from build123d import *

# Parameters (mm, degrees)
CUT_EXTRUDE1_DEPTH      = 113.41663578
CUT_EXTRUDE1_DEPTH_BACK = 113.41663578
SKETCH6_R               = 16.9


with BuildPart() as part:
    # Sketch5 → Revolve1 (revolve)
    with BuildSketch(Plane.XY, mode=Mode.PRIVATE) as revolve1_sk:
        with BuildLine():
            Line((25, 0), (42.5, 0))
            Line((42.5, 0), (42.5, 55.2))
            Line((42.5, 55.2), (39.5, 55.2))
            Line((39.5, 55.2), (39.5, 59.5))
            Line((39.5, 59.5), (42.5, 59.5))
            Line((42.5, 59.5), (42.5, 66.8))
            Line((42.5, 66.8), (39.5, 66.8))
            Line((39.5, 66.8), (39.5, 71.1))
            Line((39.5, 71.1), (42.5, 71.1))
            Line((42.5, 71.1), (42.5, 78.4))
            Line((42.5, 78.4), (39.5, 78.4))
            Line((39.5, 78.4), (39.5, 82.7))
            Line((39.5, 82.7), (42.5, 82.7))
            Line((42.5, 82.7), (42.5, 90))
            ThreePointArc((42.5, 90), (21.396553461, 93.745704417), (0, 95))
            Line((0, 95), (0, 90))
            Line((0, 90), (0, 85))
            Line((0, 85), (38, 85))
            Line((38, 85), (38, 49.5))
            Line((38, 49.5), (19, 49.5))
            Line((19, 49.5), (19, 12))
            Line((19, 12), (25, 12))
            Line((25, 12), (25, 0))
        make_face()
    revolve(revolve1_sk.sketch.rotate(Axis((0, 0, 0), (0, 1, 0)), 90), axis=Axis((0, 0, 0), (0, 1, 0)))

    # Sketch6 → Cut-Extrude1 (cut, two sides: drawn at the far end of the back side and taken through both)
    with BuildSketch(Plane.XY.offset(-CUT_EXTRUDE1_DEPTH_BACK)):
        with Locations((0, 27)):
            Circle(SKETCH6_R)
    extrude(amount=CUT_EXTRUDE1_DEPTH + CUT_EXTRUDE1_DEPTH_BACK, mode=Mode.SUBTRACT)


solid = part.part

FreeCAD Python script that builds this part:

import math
import FreeCAD as App
import Part
import Sketcher
Q = App.Units.Quantity

doc = App.newDocument("Part")
params = doc.addObject("Spreadsheet::Sheet", "Params")
for row, (alias, value) in enumerate([
    ("sketch1_width", "3 mm"),
    ("sketch1_width2", "38 mm"),
    ("sketch1_width3", "19 mm"),
    ("sketch1_width4", "6 mm"),
    ("sketch1_height", "10 mm"),
    ("revolution_angle", "360 deg"),
    ("sketch2_diameter", "33.8 mm"),
], start=1):
    params.set(f"A{row}", alias)
    params.set(f"B{row}", "=" + value)
    params.setAlias(f"B{row}", alias)

body = doc.addObject("PartDesign::Body", "Body")

# Sketch on XY plane
sketch1 = doc.addObject("Sketcher::SketchObject", "Sketch")
body.addObject(sketch1)
sketch1.AttachmentSupport = (doc.XY_Plane, [""])
sketch1.MapMode = "FlatFace"
sketch1.addGeometry([
    Part.LineSegment(App.Vector(25, 0, 0), App.Vector(42.5, 0, 0)),  # 0
    Part.LineSegment(App.Vector(42.5, 0, 0), App.Vector(42.5, 55.2, 0)),  # 1
    Part.LineSegment(App.Vector(42.5, 55.2, 0), App.Vector(39.5, 55.2, 0)),  # 2
    Part.LineSegment(App.Vector(39.5, 55.2, 0), App.Vector(39.5, 59.5, 0)),  # 3
    Part.LineSegment(App.Vector(39.5, 59.5, 0), App.Vector(42.5, 59.5, 0)),  # 4
    Part.LineSegment(App.Vector(42.5, 59.5, 0), App.Vector(42.5, 66.8, 0)),  # 5
    Part.LineSegment(App.Vector(42.5, 66.8, 0), App.Vector(39.5, 66.8, 0)),  # 6
    Part.LineSegment(App.Vector(39.5, 66.8, 0), App.Vector(39.5, 71.1, 0)),  # 7
    Part.LineSegment(App.Vector(39.5, 71.1, 0), App.Vector(42.5, 71.1, 0)),  # 8
    Part.LineSegment(App.Vector(42.5, 71.1, 0), App.Vector(42.5, 78.4, 0)),  # 9
    Part.LineSegment(App.Vector(42.5, 78.4, 0), App.Vector(39.5, 78.4, 0)),  # 10
    Part.LineSegment(App.Vector(39.5, 78.4, 0), App.Vector(39.5, 82.7, 0)),  # 11
    Part.LineSegment(App.Vector(39.5, 82.7, 0), App.Vector(42.5, 82.7, 0)),  # 12
    Part.LineSegment(App.Vector(42.5, 82.7, 0), App.Vector(42.5, 90, 0)),  # 13
    Part.ArcOfCircle(Part.Circle(App.Vector(0, -88.1, 0), App.Vector(0, 0, 1), 183.1), math.radians(76.58), math.radians(90)),  # 14
    Part.LineSegment(App.Vector(0, 95, 0), App.Vector(0, 85, 0)),  # 15
    Part.LineSegment(App.Vector(0, 85, 0), App.Vector(38, 85, 0)),  # 16
    Part.LineSegment(App.Vector(38, 85, 0), App.Vector(38, 49.5, 0)),  # 17
    Part.LineSegment(App.Vector(38, 49.5, 0), App.Vector(19, 49.5, 0)),  # 18
    Part.LineSegment(App.Vector(19, 49.5, 0), App.Vector(19, 12, 0)),  # 19
    Part.LineSegment(App.Vector(19, 12, 0), App.Vector(25, 12, 0)),  # 20
    Part.LineSegment(App.Vector(25, 12, 0), App.Vector(25, 0, 0)),  # 21
], False)
sketch1.addConstraint([
    Sketcher.Constraint("Coincident", 0, 2, 1, 1),
    Sketcher.Constraint("Coincident", 1, 2, 2, 1),
    Sketcher.Constraint("Coincident", 2, 2, 3, 1),
    Sketcher.Constraint("Coincident", 3, 2, 4, 1),
    Sketcher.Constraint("Coincident", 4, 2, 5, 1),
    Sketcher.Constraint("Coincident", 5, 2, 6, 1),
    Sketcher.Constraint("Coincident", 6, 2, 7, 1),
    Sketcher.Constraint("Coincident", 7, 2, 8, 1),
    Sketcher.Constraint("Coincident", 8, 2, 9, 1),
    Sketcher.Constraint("Coincident", 9, 2, 10, 1),
    Sketcher.Constraint("Coincident", 10, 2, 11, 1),
    Sketcher.Constraint("Coincident", 11, 2, 12, 1),
    Sketcher.Constraint("Coincident", 12, 2, 13, 1),
    Sketcher.Constraint("Coincident", 13, 2, 14, 1),
    Sketcher.Constraint("Coincident", 14, 2, 15, 1),
    Sketcher.Constraint("Coincident", 15, 2, 16, 1),
    Sketcher.Constraint("Coincident", 16, 2, 17, 1),
    Sketcher.Constraint("Coincident", 17, 2, 18, 1),
    Sketcher.Constraint("Coincident", 18, 2, 19, 1),
    Sketcher.Constraint("Coincident", 19, 2, 20, 1),
    Sketcher.Constraint("Coincident", 20, 2, 21, 1),
    Sketcher.Constraint("Coincident", 21, 2, 0, 1),
    Sketcher.Constraint("Horizontal", 0),
    Sketcher.Constraint("Vertical", 1),
    Sketcher.Constraint("Horizontal", 2),
    Sketcher.Constraint("Vertical", 3),
    Sketcher.Constraint("Horizontal", 4),
    Sketcher.Constraint("Vertical", 5),
    Sketcher.Constraint("Horizontal", 6),
    Sketcher.Constraint("Vertical", 7),
    Sketcher.Constraint("Horizontal", 8),
    Sketcher.Constraint("Vertical", 9),
    Sketcher.Constraint("Horizontal", 10),
    Sketcher.Constraint("Vertical", 11),
    Sketcher.Constraint("Horizontal", 12),
    Sketcher.Constraint("Vertical", 13),
    Sketcher.Constraint("Vertical", 15),
    Sketcher.Constraint("Horizontal", 16),
    Sketcher.Constraint("Vertical", 17),
    Sketcher.Constraint("Horizontal", 18),
    Sketcher.Constraint("Vertical", 19),
    Sketcher.Constraint("Horizontal", 20),
    Sketcher.Constraint("Vertical", 21),
    Sketcher.Constraint("PointOnObject", 14, 3, -2),
    Sketcher.Constraint("PointOnObject", 0, 2, -1),
    Sketcher.Constraint("PointOnObject", 14, 2, -2),
    Sketcher.Constraint("Vertical", 1, 2, 4, 2),
    Sketcher.Constraint("Vertical", 3, 2, 6, 2),
    Sketcher.Constraint("Vertical", 5, 2, 8, 2),
    Sketcher.Constraint("Vertical", 7, 2, 10, 2),
    Sketcher.Constraint("Vertical", 9, 2, 12, 2),
    Sketcher.Constraint("Equal", 3, 7),
    Sketcher.Constraint("Equal", 5, 9),
    Sketcher.Constraint("Equal", 7, 11),
    Sketcher.Constraint("Equal", 9, 13),
    Sketcher.Constraint("DistanceX", 2, 2, 2, 1, Q("3 mm")),
    Sketcher.Constraint("DistanceX", 16, 1, 16, 2, Q("38 mm")),
    Sketcher.Constraint("DistanceX", 18, 2, 18, 1, Q("19 mm")),
    Sketcher.Constraint("DistanceX", 20, 1, 20, 2, Q("6 mm")),
    Sketcher.Constraint("DistanceY", 15, 2, 15, 1, Q("10 mm")),
    Sketcher.Constraint("DistanceY", 21, 2, 21, 1, Q("12 mm")),
    Sketcher.Constraint("DistanceX", 0, 1, 0, 2, Q("17.5 mm")),
    Sketcher.Constraint("DistanceY", 1, 1, 1, 2, Q("55.2 mm")),
    Sketcher.Constraint("DistanceY", 3, 1, 3, 2, Q("4.3 mm")),
    Sketcher.Constraint("DistanceY", 5, 1, 5, 2, Q("7.3 mm")),
    Sketcher.Constraint("DistanceY", 17, 2, 17, 1, Q("35.5 mm")),
    Sketcher.Constraint("DistanceY", 19, 2, 19, 1, Q("37.5 mm")),
])
sketch1.setExpression("Constraints[55]", "Params.sketch1_width")
sketch1.setExpression("Constraints[56]", "Params.sketch1_width2")
sketch1.setExpression("Constraints[57]", "Params.sketch1_width3")
sketch1.setExpression("Constraints[58]", "Params.sketch1_width4")
sketch1.setExpression("Constraints[59]", "Params.sketch1_height")
revolution = doc.addObject("PartDesign::Revolution", "Revolution")
body.addObject(revolution)
revolution.Profile = sketch1
revolution.ReferenceAxis = (sketch1, ["V_Axis"])
revolution.setExpression("Angle", "Params.revolution_angle")

# Sketch on XY plane
sketch2 = doc.addObject("Sketcher::SketchObject", "Sketch001")
body.addObject(sketch2)
sketch2.AttachmentSupport = (doc.XY_Plane, [""])
sketch2.MapMode = "FlatFace"
sketch2.addGeometry(Part.Circle(App.Vector(0, 27, 0), App.Vector(0, 0, 1), 17), False)
sketch2.addConstraint([
    Sketcher.Constraint("PointOnObject", 0, 3, -2),
    Sketcher.Constraint("Diameter", 0, Q("33.8 mm")),
    Sketcher.Constraint("DistanceY", -1, 1, 0, 3, Q("27 mm")),
])
sketch2.setExpression("Constraints[1]", "Params.sketch2_diameter")
pocket1 = doc.addObject("PartDesign::Pocket", "Pocket")
body.addObject(pocket1)
pocket1.Profile = sketch2
pocket1.Type = "ThroughAll"
pocket1.Midplane = True

doc.recompute()
